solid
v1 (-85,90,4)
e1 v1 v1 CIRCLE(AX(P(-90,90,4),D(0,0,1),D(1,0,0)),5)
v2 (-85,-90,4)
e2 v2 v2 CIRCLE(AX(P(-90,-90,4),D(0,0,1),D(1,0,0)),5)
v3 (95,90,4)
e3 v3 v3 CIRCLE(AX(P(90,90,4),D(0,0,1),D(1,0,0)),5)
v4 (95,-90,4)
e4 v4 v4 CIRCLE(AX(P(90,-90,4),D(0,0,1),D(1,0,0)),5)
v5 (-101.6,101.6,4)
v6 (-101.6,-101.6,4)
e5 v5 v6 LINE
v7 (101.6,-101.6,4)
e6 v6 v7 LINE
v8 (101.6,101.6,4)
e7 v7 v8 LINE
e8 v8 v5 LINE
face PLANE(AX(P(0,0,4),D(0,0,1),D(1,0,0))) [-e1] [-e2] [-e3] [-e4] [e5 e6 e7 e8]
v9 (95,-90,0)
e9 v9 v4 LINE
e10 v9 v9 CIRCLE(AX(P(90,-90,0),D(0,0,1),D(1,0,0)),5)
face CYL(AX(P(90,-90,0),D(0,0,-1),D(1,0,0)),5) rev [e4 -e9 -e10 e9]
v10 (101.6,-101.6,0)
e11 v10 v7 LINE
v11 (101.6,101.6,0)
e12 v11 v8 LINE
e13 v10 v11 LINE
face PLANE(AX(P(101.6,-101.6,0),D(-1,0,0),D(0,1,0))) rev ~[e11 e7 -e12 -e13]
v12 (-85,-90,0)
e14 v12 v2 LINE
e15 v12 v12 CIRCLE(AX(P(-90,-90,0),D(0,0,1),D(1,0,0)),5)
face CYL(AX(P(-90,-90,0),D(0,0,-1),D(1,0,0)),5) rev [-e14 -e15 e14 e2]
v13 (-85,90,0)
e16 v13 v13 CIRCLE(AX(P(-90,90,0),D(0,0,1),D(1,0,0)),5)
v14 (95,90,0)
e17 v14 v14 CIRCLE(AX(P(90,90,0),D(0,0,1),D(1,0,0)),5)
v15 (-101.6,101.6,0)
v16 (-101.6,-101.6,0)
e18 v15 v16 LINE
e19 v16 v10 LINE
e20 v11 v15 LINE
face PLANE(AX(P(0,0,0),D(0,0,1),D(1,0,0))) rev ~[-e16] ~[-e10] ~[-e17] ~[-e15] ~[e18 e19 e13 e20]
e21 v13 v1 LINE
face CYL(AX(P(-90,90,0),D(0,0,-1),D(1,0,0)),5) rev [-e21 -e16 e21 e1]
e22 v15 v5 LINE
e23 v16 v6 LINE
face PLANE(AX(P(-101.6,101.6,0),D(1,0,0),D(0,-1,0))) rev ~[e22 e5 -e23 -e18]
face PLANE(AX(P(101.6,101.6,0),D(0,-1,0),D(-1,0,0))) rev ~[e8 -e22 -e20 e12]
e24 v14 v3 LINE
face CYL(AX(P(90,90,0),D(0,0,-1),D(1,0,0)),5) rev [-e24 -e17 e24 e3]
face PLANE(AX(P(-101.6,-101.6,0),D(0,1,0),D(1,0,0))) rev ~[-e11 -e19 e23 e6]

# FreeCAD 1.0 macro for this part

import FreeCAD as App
import Part
import Sketcher
from FreeCAD import Vector

doc = App.newDocument("Part")
body = doc.addObject("PartDesign::Body", "Body")

# Sketch on XY plane
sketch1 = body.newObject("Sketcher::SketchObject", "Sketch")
sketch1.AttachmentSupport = (doc.getObject("XY_Plane"), [""])
sketch1.MapMode = "FlatFace"
sketch1.addGeometry([
    Part.LineSegment(Vector(102, -102, 0), Vector(102, 102, 0)),  # 0
    Part.LineSegment(Vector(102, 102, 0), Vector(-102, 102, 0)),  # 1
    Part.LineSegment(Vector(-102, 102, 0), Vector(-102, -102, 0)),  # 2
    Part.LineSegment(Vector(-102, -102, 0), Vector(102, -102, 0)),  # 3
    Part.Circle(Vector(-90, -90, 0), Vector(0, 0, 1), 5),  # 4
    Part.Circle(Vector(90, -90, 0), Vector(0, 0, 1), 5),  # 5
    Part.Circle(Vector(-90, 90, 0), Vector(0, 0, 1), 5),  # 6
    Part.Circle(Vector(90, 90, 0), Vector(0, 0, 1), 5),  # 7
], False)
sketch1.addConstraint([
    Sketcher.Constraint("Coincident", 0, 2, 1, 1),
    Sketcher.Constraint("Coincident", 1, 2, 2, 1),
    Sketcher.Constraint("Coincident", 2, 2, 3, 1),
    Sketcher.Constraint("Coincident", 3, 2, 0, 1),
    Sketcher.Constraint("Vertical", 0),
    Sketcher.Constraint("Horizontal", 1),
    Sketcher.Constraint("Vertical", 2),
    Sketcher.Constraint("Horizontal", 3),
    Sketcher.Constraint("Equal", 4, 5),
    Sketcher.Constraint("Equal", 5, 6),
    Sketcher.Constraint("Equal", 6, 7),
    Sketcher.Constraint("Symmetric", 5, 3, 6, 3, -1, 1),
    Sketcher.Constraint("Symmetric", 4, 3, 7, 3, -1, 1),
    Sketcher.Constraint("Symmetric", 0, 2, 2, 2, -1, 1),
    Sketcher.Constraint("Symmetric", 4, 3, 5, 3, -2),
    Sketcher.Constraint("Equal", 3, 0),
    Sketcher.Constraint("Diameter", 4, 10.0),
    Sketcher.Constraint("DistanceX", 1, 2, 1, 1, 203.2),
    Sketcher.Constraint("DistanceX", 7, 3, 0, 2, 11.6),
    Sketcher.Constraint("DistanceY", 7, 3, 0, 2, 11.6),
])
pad1 = body.newObject("PartDesign::Pad", "Pad")
pad1.Profile = sketch1
pad1.Length = 4

doc.recompute()
